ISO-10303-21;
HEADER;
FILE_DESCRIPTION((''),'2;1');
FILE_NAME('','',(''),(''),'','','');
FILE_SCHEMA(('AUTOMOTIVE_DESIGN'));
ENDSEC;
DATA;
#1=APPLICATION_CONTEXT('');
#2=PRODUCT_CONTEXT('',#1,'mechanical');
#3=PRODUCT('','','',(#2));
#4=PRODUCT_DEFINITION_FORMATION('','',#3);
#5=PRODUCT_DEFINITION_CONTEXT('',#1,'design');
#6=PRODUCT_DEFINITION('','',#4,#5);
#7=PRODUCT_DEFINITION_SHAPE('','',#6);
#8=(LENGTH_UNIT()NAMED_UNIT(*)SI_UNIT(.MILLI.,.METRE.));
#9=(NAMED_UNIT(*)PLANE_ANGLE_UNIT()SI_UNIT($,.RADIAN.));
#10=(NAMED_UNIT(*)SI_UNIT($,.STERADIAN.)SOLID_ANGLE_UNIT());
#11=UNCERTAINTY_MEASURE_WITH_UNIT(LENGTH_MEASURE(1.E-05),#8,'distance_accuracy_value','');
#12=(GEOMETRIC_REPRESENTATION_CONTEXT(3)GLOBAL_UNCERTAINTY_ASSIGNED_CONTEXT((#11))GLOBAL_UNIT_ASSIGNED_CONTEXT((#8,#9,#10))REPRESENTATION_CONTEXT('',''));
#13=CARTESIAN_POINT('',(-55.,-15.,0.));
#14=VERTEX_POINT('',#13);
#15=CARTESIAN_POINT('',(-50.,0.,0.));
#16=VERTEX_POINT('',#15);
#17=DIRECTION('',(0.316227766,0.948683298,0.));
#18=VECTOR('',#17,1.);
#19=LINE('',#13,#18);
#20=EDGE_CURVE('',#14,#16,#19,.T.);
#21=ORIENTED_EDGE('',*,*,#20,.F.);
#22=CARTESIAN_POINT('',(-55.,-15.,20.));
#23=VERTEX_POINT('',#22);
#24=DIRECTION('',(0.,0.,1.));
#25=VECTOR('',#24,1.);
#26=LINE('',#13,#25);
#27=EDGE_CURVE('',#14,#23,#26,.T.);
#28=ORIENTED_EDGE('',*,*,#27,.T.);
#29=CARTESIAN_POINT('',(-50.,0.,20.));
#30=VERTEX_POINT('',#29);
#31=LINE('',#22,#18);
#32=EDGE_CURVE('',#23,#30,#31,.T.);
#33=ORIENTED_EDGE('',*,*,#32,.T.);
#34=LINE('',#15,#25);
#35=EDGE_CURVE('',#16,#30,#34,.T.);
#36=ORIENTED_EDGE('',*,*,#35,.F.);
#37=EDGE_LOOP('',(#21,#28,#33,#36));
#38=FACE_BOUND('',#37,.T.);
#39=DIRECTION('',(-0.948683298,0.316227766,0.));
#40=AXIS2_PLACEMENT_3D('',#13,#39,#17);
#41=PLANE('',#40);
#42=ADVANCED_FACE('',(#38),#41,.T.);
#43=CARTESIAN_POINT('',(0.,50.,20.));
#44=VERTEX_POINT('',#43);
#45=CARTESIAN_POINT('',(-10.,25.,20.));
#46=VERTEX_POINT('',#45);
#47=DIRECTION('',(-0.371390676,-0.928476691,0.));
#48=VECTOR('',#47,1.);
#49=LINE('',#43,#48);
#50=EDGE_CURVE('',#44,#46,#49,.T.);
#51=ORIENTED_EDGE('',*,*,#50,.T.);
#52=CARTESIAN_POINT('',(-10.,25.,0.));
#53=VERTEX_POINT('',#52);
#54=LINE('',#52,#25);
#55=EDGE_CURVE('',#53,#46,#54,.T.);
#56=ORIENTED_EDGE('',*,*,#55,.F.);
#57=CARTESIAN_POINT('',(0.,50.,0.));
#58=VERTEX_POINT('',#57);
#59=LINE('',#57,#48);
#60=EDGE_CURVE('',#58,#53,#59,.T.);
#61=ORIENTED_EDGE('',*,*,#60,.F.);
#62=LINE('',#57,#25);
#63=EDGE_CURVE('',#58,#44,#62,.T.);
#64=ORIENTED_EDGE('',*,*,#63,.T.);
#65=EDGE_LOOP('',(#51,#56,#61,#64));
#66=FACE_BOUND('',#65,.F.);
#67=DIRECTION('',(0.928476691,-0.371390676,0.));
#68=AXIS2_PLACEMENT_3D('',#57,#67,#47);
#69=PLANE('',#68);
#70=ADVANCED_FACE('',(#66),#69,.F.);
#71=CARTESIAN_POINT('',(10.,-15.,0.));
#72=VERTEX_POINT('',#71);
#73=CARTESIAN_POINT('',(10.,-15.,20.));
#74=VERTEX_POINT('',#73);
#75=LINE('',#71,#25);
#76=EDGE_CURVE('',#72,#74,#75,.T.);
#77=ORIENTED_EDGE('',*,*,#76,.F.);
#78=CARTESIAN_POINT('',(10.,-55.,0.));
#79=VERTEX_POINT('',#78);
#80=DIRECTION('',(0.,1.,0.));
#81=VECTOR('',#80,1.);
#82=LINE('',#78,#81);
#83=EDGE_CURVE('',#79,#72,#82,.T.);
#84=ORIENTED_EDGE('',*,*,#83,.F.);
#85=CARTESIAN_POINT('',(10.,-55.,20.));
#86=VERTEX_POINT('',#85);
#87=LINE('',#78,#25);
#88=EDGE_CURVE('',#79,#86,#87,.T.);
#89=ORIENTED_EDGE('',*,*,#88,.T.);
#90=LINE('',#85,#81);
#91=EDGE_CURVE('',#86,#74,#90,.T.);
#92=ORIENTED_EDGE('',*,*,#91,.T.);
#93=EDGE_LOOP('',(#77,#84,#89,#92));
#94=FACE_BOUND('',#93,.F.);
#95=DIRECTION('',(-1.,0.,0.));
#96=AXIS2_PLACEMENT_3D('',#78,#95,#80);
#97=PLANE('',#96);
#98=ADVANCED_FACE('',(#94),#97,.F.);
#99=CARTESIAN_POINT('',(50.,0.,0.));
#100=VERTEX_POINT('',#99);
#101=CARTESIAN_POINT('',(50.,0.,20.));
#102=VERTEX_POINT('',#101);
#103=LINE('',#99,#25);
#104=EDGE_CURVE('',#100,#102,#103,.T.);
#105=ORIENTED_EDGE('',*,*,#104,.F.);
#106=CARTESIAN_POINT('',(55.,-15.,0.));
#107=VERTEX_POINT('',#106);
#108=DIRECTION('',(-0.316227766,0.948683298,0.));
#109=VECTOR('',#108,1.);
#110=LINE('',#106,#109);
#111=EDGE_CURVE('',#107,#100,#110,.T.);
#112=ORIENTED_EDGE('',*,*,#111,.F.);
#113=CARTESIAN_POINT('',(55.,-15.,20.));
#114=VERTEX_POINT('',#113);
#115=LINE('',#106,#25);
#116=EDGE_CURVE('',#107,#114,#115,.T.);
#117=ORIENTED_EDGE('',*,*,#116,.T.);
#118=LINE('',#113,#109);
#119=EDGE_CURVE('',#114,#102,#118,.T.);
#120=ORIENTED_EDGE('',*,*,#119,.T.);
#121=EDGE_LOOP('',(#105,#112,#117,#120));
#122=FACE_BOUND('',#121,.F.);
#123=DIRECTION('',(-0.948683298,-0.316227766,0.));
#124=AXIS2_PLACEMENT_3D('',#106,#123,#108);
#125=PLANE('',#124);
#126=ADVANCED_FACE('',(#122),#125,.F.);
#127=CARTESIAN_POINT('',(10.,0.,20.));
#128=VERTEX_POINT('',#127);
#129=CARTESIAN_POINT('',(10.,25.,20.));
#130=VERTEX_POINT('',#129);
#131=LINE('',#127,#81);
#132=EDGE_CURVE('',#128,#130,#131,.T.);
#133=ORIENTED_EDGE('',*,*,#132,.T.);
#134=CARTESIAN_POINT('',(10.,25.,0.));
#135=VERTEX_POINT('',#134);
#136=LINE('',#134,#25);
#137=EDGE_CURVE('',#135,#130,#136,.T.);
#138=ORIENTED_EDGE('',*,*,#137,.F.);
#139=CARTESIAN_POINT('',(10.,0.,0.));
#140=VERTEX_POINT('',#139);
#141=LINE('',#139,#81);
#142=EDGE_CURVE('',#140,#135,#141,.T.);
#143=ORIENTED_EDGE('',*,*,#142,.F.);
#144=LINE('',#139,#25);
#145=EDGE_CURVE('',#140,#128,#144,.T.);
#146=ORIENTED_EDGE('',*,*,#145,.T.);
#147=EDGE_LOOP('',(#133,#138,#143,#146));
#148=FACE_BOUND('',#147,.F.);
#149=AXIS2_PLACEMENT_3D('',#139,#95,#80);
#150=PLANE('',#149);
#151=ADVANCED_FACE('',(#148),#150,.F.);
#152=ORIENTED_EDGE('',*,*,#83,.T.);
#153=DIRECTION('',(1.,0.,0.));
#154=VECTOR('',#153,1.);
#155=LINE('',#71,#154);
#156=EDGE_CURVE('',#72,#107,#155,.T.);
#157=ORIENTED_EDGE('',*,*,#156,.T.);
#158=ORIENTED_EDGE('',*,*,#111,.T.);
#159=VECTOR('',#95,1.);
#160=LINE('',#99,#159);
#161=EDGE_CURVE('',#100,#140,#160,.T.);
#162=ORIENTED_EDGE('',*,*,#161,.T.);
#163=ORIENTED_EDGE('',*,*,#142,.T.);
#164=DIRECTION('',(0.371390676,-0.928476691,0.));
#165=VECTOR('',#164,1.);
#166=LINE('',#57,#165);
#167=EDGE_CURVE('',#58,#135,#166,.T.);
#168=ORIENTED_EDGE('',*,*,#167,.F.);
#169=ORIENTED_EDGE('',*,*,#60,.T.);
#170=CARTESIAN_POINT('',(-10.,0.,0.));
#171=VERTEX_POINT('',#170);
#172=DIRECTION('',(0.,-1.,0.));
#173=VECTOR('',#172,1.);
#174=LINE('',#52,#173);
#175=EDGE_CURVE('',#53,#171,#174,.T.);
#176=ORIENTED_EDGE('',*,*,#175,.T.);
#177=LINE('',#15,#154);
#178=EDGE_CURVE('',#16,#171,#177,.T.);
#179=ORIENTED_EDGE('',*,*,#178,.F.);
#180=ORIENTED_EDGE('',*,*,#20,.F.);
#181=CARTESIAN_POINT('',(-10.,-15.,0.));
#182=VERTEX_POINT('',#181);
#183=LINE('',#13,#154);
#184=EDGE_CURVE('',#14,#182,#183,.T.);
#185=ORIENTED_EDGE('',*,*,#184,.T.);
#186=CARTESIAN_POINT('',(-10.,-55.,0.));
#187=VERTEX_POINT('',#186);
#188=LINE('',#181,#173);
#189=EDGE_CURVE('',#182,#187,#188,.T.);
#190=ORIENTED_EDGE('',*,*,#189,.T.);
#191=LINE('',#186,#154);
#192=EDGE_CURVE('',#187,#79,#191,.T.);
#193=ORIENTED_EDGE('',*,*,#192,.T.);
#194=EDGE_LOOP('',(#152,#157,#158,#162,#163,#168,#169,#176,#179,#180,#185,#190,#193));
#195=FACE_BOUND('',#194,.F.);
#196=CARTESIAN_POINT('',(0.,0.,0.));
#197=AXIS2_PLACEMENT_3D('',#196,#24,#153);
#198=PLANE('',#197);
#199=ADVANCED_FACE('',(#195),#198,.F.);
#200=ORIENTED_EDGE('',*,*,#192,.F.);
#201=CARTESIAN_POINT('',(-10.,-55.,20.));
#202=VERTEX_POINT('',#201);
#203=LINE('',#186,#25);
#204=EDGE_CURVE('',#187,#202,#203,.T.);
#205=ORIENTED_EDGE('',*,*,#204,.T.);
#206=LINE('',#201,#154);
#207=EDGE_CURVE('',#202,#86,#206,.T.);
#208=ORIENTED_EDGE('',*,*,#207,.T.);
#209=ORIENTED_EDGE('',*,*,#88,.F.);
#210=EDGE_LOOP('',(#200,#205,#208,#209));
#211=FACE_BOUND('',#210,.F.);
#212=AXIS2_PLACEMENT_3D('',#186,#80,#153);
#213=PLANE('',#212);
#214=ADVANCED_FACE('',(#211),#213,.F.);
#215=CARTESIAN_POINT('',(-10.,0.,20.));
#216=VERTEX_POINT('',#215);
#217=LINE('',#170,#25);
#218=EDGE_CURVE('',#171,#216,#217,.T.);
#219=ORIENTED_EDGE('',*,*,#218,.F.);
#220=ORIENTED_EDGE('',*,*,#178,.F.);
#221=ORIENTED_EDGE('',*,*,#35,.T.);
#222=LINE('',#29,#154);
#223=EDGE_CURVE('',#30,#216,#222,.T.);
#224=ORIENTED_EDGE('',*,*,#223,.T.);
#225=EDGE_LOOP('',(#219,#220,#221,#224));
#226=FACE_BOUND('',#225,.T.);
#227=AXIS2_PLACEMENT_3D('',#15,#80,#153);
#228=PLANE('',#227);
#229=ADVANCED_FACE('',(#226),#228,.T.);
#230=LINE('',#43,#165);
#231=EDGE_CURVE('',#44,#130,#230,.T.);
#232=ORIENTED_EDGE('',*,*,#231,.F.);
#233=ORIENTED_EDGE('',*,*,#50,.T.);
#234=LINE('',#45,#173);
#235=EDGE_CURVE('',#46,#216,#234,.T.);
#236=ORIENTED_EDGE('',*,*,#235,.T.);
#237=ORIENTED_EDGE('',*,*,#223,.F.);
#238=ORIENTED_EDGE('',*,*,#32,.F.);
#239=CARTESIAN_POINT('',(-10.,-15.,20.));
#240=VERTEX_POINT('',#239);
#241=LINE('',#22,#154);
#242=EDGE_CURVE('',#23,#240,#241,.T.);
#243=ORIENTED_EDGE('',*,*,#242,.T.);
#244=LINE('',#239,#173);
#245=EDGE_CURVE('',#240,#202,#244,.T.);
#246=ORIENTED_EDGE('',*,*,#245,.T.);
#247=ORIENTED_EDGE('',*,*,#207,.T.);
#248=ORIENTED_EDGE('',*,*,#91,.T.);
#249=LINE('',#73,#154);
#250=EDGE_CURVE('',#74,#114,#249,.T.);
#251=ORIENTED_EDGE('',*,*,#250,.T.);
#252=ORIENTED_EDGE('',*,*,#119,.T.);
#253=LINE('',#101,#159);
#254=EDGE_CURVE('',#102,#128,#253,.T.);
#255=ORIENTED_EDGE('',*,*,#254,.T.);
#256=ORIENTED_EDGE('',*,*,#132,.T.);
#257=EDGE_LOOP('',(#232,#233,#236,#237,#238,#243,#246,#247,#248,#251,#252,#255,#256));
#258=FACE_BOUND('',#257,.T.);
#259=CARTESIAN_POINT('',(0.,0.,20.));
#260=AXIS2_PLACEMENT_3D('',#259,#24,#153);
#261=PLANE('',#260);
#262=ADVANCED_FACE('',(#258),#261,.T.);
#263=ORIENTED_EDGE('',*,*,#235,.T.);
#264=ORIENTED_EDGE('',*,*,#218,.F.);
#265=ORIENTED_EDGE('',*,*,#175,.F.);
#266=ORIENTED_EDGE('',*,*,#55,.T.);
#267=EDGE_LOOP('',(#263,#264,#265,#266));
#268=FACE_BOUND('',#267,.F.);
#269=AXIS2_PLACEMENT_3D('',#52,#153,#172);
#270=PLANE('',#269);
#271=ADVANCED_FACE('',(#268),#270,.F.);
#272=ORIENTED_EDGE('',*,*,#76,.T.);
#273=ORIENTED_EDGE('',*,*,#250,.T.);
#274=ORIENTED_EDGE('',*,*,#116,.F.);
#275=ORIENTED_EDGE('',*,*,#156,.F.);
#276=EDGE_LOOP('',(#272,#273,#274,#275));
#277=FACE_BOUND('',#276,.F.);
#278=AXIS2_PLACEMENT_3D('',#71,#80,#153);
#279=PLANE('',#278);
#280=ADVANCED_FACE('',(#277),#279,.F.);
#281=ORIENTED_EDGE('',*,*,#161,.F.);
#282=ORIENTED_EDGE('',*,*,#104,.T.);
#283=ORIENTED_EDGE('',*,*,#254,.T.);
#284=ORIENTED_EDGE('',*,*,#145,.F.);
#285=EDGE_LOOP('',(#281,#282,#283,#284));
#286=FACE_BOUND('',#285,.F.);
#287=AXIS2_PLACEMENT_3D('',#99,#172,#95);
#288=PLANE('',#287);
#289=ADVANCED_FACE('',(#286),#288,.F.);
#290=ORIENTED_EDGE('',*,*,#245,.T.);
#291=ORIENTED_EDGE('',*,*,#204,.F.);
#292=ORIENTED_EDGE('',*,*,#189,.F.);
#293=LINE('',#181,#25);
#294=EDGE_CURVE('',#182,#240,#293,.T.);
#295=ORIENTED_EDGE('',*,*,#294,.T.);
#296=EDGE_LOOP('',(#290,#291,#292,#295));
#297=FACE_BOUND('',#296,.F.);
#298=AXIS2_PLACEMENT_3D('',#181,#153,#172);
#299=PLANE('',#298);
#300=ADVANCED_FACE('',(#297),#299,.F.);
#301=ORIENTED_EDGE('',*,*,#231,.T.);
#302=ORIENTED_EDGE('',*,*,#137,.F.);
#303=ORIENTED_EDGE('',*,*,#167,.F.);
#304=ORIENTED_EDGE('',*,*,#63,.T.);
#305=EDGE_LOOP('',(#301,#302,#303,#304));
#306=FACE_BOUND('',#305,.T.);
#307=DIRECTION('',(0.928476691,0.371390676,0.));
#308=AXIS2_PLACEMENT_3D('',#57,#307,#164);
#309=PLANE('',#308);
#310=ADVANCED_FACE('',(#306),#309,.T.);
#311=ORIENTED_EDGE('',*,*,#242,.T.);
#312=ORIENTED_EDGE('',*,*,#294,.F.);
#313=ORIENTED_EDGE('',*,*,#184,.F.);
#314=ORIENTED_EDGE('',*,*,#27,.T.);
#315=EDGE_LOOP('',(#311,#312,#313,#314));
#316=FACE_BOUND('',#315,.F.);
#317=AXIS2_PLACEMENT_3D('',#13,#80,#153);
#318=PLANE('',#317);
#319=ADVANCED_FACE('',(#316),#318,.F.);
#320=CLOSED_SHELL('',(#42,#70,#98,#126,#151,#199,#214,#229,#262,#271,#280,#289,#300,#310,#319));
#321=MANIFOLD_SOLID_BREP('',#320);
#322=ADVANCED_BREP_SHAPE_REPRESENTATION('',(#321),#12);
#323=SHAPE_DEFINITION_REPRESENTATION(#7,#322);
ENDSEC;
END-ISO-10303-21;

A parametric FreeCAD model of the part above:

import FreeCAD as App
import Part
import Sketcher
from FreeCAD import Vector
Q = App.Units.Quantity


def add_polygon(sketch, points):
    """Adds a closed chain of lines whose ends are joined by coincident constraints."""
    first, n = sketch.GeometryCount, len(points)
    for a, b in zip(points, points[1:] + points[:1]):
        sketch.addGeometry(Part.LineSegment(App.Vector(*a, 0), App.Vector(*b, 0)), False)
    for i in range(n):
        sketch.addConstraint(Sketcher.Constraint("Coincident", first + i, 2, first + (i + 1) % n, 1))

doc = App.newDocument("Part")
body = doc.addObject("PartDesign::Body", "Body")

# Sketch on XY plane
sketch1 = body.newObject("Sketcher::SketchObject", "Sketch")
sketch1.AttachmentSupport = (doc.getObject("XY_Plane"), [""])
sketch1.MapMode = "FlatFace"
add_polygon(sketch1, [(10, 25), (0, 50), (-10, 25), (-10, 0), (-50, 0), (-55, -15), (-10, -15), (-10, -55), (10, -55), (10, -15), (55, -15), (50, 0), (10, 0)])  # lines 0-12
sketch1.addConstraint([
    Sketcher.Constraint("Vertical", 2),
    Sketcher.Constraint("Horizontal", 3),
    Sketcher.Constraint("Horizontal", 5),
    Sketcher.Constraint("Vertical", 6),
    Sketcher.Constraint("Horizontal", 7),
    Sketcher.Constraint("Vertical", 8),
    Sketcher.Constraint("Horizontal", 9),
    Sketcher.Constraint("Horizontal", 11),
    Sketcher.Constraint("Vertical", 12),
    Sketcher.Constraint("Symmetric", 3, 2, 10, 2, -1, 1),
    Sketcher.Constraint("Symmetric", 5, 2, 8, 2, -2),
    Sketcher.Constraint("Symmetric", 2, 2, 11, 2, -2),
    Sketcher.Constraint("PointOnObject", 0, 2, -2),
    Sketcher.Constraint("Horizontal", 1, 2, 12, 2),
    Sketcher.Constraint("Vertical", 2, 2, 5, 2),
    Sketcher.Constraint("Equal", 5, 9),
    Sketcher.Constraint("Equal", 11, 6),
    Sketcher.Constraint("DistanceX", 3, 2, 3, 1, Q("40 mm")),
    Sketcher.Constraint("DistanceX", 5, 1, 5, 2, Q("45 mm")),
    Sketcher.Constraint("DistanceX", 7, 1, 7, 2, Q("20 mm")),
    Sketcher.Constraint("DistanceY", 2, 2, 2, 1, Q("25 mm")),
    Sketcher.Constraint("DistanceY", -1, 1, 0, 2, Q("50 mm")),
    Sketcher.Constraint("DistanceY", 4, 2, -1, 1, Q("15 mm")),
])
pad1 = body.newObject("PartDesign::Pad", "Pad")
pad1.Profile = sketch1
pad1.Length = 20

doc.recompute()
